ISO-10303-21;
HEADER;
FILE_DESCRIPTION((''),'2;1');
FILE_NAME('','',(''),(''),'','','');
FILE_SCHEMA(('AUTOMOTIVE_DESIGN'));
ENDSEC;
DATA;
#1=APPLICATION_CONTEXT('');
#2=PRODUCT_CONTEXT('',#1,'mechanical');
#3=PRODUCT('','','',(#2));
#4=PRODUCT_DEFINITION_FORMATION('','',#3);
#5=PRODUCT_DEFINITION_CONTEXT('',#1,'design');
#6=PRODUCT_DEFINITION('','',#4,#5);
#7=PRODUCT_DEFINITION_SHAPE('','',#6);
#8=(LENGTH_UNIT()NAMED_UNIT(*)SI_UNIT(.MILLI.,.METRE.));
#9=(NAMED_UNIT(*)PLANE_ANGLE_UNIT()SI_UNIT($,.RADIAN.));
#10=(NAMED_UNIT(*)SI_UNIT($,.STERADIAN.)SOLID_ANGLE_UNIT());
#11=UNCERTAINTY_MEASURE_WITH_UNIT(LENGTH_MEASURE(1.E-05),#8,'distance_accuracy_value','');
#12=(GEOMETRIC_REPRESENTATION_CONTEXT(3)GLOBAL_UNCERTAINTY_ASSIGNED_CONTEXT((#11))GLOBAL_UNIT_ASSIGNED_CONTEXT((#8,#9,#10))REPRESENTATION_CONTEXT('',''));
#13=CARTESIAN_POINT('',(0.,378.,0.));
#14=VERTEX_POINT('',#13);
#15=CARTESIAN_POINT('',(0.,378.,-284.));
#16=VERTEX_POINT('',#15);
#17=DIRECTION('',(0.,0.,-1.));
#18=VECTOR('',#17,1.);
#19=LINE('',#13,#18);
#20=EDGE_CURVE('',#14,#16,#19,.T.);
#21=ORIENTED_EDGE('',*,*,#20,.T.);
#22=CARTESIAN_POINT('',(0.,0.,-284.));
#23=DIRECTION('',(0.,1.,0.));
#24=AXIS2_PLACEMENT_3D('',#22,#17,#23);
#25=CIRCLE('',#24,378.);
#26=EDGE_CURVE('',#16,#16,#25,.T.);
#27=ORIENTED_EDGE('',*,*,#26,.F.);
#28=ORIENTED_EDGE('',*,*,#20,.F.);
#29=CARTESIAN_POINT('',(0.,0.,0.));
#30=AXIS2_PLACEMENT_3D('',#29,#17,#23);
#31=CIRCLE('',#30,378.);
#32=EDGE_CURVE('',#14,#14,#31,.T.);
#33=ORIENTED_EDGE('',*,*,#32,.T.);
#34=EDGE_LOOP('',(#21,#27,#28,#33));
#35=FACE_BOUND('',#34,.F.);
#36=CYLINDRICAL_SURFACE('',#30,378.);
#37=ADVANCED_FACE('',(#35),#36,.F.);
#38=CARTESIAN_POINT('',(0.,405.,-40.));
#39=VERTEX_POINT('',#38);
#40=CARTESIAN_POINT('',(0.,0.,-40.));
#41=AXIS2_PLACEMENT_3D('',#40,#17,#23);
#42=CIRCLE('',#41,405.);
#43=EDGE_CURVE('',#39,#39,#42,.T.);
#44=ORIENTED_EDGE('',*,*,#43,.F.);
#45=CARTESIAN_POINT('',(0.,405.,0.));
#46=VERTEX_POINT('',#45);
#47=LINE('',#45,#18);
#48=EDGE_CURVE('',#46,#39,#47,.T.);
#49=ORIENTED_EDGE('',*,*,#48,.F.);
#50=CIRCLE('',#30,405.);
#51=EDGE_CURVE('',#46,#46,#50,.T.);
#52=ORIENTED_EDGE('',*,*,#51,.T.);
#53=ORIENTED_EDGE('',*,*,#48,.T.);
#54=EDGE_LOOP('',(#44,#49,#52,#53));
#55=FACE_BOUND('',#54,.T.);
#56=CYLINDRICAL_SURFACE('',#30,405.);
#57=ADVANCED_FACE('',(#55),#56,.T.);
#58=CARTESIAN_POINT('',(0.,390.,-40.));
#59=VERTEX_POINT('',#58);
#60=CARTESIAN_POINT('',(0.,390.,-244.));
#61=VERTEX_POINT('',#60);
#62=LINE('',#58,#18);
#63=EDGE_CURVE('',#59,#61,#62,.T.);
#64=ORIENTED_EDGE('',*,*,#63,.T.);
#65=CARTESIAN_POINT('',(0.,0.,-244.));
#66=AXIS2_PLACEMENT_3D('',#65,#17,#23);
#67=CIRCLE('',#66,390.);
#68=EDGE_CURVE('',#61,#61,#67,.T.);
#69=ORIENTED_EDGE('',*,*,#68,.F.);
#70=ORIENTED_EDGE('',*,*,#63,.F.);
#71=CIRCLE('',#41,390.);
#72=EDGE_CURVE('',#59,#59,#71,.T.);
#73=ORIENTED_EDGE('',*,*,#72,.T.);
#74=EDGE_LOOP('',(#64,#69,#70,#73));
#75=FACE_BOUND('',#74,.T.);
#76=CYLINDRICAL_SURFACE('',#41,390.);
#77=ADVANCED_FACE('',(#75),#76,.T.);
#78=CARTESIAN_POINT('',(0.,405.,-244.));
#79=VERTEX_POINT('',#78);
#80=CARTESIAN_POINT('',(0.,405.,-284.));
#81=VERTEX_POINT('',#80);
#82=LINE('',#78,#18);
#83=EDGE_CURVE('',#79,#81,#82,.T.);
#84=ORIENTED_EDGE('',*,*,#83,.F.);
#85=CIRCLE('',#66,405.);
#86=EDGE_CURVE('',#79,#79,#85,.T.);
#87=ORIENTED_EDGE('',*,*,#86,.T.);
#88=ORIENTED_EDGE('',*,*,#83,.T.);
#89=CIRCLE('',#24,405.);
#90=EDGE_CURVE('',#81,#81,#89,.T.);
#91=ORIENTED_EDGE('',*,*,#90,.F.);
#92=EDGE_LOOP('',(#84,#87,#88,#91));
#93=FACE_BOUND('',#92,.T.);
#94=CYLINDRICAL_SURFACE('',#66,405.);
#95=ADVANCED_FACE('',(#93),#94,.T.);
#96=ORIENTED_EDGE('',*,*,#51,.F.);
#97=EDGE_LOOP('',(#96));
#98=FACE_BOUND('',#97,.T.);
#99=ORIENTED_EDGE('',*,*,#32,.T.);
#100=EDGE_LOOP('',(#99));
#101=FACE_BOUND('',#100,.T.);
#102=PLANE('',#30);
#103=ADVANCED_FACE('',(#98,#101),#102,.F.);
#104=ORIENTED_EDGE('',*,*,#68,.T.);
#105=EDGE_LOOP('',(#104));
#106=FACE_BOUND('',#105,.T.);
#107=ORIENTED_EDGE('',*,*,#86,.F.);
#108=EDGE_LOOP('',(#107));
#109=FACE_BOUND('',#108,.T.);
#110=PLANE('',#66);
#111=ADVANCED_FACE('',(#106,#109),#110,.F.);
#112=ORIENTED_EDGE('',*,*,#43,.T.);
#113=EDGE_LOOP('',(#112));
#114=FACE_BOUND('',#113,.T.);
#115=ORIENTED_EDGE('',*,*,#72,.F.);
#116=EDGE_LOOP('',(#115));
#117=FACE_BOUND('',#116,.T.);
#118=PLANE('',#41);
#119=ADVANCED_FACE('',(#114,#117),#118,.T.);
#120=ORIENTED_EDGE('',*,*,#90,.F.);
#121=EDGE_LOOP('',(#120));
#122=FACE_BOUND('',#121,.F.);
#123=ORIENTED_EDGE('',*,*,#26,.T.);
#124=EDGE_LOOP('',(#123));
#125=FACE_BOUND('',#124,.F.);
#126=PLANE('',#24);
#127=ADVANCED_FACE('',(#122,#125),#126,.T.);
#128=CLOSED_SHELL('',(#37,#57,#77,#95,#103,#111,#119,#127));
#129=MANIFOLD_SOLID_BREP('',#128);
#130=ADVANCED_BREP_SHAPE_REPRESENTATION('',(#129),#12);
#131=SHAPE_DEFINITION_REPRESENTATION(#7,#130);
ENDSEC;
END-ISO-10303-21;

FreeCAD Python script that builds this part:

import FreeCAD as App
import Part
import Sketcher
Q = App.Units.Quantity

doc = App.newDocument("Part")
body = doc.addObject("PartDesign::Body", "Body")

# Sketch on YZ plane
sketch1 = body.newObject("Sketcher::SketchObject", "Sketch")
sketch1.AttachmentSupport = (doc.getObject("YZ_Plane"), [""])
sketch1.MapMode = "FlatFace"
sketch1.addGeometry([
    Part.LineSegment(App.Vector(405, 0, 0), App.Vector(378, 0, 0)),  # 0
    Part.LineSegment(App.Vector(378, 0, 0), App.Vector(378, -284, 0)),  # 1
    Part.LineSegment(App.Vector(378, -284, 0), App.Vector(405, -284, 0)),  # 2
    Part.LineSegment(App.Vector(405, -284, 0), App.Vector(405, -244, 0)),  # 3
    Part.LineSegment(App.Vector(405, -244, 0), App.Vector(390, -244, 0)),  # 4
    Part.LineSegment(App.Vector(390, -244, 0), App.Vector(390, -40, 0)),  # 5
    Part.LineSegment(App.Vector(390, -40, 0), App.Vector(405, -40, 0)),  # 6
    Part.LineSegment(App.Vector(405, -40, 0), App.Vector(405, 0, 0)),  # 7
], False)
sketch1.addConstraint([
    Sketcher.Constraint("Coincident", 0, 2, 1, 1),
    Sketcher.Constraint("Coincident", 1, 2, 2, 1),
    Sketcher.Constraint("Coincident", 2, 2, 3, 1),
    Sketcher.Constraint("Coincident", 3, 2, 4, 1),
    Sketcher.Constraint("Coincident", 4, 2, 5, 1),
    Sketcher.Constraint("Coincident", 5, 2, 6, 1),
    Sketcher.Constraint("Coincident", 6, 2, 7, 1),
    Sketcher.Constraint("Coincident", 7, 2, 0, 1),
    Sketcher.Constraint("Horizontal", 0),
    Sketcher.Constraint("Vertical", 1),
    Sketcher.Constraint("Horizontal", 2),
    Sketcher.Constraint("Vertical", 3),
    Sketcher.Constraint("Horizontal", 4),
    Sketcher.Constraint("Vertical", 5),
    Sketcher.Constraint("Horizontal", 6),
    Sketcher.Constraint("Vertical", 7),
    Sketcher.Constraint("PointOnObject", 0, 2, -1),
    Sketcher.Constraint("Vertical", 3, 2, 6, 2),
    Sketcher.Constraint("Equal", 3, 7),
    Sketcher.Constraint("DistanceY", 1, 2, 1, 1, Q("284 mm")),
    Sketcher.Constraint("DistanceY", 3, 1, 3, 2, Q("40 mm")),
    Sketcher.Constraint("DistanceX", 0, 2, 0, 1, Q("27 mm")),
    Sketcher.Constraint("DistanceX", 4, 2, 4, 1, Q("15 mm")),
    Sketcher.Constraint("DistanceX", -1, 1, 0, 2, Q("378 mm")),
])
revolution = body.newObject("PartDesign::Revolution", "Revolution")
revolution.Profile = sketch1
revolution.ReferenceAxis = (sketch1, ["V_Axis"])
revolution.Angle = 360

doc.recompute()
